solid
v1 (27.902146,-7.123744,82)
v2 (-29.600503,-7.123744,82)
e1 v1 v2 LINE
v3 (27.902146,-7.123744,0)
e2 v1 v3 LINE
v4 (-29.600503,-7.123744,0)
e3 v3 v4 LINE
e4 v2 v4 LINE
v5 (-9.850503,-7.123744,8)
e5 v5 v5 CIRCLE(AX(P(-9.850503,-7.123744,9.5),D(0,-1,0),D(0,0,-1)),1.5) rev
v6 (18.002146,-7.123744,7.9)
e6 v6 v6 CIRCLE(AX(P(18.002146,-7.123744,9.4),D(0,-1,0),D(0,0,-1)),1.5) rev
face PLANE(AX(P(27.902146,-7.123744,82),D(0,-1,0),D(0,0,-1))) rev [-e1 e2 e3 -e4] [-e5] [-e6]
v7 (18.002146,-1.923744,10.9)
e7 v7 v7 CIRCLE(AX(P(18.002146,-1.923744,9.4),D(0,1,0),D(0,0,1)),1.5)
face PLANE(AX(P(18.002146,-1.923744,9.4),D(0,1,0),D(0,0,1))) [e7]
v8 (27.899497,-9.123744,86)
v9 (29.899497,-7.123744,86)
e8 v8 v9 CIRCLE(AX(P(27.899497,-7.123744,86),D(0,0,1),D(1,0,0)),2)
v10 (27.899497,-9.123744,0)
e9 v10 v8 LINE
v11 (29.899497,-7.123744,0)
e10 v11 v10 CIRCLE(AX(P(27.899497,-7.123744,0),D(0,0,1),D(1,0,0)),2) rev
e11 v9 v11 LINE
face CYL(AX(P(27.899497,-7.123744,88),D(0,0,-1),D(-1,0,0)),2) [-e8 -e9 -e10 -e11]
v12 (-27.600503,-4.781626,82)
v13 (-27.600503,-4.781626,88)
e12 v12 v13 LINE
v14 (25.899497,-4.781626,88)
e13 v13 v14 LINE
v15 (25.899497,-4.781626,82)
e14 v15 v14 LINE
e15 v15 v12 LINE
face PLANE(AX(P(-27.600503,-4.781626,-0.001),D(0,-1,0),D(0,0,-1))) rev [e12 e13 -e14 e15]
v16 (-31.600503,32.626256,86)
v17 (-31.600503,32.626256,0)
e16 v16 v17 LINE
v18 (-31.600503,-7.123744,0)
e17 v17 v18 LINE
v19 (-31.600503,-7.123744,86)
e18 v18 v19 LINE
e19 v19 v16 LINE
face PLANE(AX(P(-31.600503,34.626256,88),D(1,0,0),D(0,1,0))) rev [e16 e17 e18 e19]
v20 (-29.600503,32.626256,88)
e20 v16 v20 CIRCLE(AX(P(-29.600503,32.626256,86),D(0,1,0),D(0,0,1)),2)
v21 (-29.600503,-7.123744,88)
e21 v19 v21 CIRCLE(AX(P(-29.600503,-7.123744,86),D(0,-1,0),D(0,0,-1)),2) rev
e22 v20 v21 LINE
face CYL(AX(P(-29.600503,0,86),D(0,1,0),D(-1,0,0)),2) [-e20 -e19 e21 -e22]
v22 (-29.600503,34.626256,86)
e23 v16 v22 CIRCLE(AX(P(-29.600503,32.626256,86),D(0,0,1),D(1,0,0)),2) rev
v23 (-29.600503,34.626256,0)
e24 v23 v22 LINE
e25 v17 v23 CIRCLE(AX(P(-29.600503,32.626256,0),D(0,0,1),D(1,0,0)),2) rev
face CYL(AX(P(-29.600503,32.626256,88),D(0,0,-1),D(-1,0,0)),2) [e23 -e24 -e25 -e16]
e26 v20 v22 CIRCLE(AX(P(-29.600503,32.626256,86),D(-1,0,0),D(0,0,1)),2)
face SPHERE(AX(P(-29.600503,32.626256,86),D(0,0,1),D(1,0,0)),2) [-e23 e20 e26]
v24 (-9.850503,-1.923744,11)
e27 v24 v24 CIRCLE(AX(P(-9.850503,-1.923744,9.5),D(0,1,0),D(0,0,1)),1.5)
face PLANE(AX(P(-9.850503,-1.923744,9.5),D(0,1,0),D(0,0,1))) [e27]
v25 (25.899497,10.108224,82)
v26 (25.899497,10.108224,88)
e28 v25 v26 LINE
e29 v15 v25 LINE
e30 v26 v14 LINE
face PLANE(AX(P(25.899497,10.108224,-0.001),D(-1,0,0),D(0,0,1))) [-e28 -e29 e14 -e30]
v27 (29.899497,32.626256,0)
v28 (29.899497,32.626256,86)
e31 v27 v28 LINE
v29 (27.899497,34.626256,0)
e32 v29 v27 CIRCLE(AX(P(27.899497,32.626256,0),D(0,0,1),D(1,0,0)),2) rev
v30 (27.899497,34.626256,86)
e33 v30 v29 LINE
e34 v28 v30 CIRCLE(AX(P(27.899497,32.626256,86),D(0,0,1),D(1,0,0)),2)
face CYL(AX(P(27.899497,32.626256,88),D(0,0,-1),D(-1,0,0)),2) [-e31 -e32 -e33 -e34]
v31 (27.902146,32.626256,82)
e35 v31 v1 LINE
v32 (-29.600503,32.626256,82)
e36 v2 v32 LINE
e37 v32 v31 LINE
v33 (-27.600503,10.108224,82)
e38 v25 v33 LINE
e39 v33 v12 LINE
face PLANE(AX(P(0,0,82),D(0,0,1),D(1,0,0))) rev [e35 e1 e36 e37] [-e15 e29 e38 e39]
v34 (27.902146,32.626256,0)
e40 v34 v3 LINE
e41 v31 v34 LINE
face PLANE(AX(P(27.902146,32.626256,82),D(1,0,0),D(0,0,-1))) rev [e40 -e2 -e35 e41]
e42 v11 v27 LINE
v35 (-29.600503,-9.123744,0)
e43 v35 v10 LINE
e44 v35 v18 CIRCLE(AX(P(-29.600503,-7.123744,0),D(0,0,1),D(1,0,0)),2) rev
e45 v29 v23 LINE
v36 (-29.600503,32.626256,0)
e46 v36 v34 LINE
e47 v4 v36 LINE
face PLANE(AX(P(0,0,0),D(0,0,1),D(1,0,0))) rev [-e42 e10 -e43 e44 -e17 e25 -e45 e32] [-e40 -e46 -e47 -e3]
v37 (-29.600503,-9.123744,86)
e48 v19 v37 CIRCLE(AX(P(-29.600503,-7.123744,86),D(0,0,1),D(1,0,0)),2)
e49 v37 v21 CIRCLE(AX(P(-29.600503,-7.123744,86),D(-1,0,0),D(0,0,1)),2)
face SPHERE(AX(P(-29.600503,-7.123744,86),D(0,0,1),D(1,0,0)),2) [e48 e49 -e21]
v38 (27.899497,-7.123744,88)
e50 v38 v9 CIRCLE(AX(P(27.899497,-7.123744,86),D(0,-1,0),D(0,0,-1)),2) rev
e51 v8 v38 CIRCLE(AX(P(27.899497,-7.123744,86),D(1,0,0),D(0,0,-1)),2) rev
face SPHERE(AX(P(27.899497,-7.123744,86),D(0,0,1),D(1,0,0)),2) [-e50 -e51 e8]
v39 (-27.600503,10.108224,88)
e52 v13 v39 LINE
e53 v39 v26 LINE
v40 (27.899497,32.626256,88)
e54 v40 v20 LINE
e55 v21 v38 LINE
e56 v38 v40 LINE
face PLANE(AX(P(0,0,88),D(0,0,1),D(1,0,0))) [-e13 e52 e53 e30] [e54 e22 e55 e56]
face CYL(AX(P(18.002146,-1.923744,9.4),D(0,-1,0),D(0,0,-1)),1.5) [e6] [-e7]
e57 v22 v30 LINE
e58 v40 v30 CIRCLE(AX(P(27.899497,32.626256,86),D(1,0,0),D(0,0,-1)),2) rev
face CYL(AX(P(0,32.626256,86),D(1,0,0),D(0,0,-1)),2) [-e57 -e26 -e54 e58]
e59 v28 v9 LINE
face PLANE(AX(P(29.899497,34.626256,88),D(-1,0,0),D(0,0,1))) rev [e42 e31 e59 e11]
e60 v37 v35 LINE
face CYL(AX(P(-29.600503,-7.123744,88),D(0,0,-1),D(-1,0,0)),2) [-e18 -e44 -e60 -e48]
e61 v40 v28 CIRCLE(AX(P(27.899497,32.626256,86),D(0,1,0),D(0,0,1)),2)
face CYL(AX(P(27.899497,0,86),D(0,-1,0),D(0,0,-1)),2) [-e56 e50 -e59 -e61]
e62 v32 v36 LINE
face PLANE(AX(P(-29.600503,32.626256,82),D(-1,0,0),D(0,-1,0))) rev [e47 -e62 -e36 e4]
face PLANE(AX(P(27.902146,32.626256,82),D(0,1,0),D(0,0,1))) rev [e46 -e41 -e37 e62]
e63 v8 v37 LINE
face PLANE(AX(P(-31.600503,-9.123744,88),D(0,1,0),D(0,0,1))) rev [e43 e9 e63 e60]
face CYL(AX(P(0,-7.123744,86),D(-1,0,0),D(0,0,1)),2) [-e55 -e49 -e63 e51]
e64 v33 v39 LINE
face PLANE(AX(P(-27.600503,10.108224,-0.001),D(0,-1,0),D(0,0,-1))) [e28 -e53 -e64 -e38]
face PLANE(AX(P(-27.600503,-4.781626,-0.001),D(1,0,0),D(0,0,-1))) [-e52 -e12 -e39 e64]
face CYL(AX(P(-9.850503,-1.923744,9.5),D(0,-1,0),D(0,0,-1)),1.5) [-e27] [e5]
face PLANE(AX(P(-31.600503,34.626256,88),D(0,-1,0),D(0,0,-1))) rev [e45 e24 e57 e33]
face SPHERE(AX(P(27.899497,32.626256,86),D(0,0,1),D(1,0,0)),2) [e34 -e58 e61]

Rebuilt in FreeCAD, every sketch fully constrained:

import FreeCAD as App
import Part
import Sketcher
from FreeCAD import Vector


def edges_at(feature, points):
    """Names of the edges that pass closest to the given points."""
    edges = feature.Shape.Edges
    near = lambda p: min(range(len(edges)), key=lambda i: edges[i].distToShape(Part.Vertex(*p))[0])
    return sorted({f"Edge{near(p) + 1}" for p in points})


def add_polygon(sketch, points):
    """Adds a closed chain of lines whose ends are joined by coincident constraints."""
    first, n = sketch.GeometryCount, len(points)
    for a, b in zip(points, points[1:] + points[:1]):
        sketch.addGeometry(Part.LineSegment(App.Vector(*a, 0), App.Vector(*b, 0)), False)
    for i in range(n):
        sketch.addConstraint(Sketcher.Constraint("Coincident", first + i, 2, first + (i + 1) % n, 1))

doc = App.newDocument("Part")
body = doc.addObject("PartDesign::Body", "Body")

# Sketch on XY plane
sketch1 = body.newObject("Sketcher::SketchObject", "Sketch")
sketch1.AttachmentSupport = (doc.getObject("XY_Plane"), [""])
sketch1.MapMode = "FlatFace"
add_polygon(sketch1, [(-31.600503, 34.626256), (-31.600503, -9.123744), (29.899497, -9.123744), (29.899497, 34.626256)])  # lines 0-3
sketch1.addConstraint([
    Sketcher.Constraint("Vertical", 0),
    Sketcher.Constraint("Horizontal", 1),
    Sketcher.Constraint("Vertical", 2),
    Sketcher.Constraint("Horizontal", 3),
    Sketcher.Constraint("DistanceX", 1, 1, 1, 2, 61.5),
    Sketcher.Constraint("DistanceY", 0, 2, 0, 1, 43.75),
    Sketcher.Constraint("DistanceX", 0, 2, -1, 1, 31.600503),
    Sketcher.Constraint("DistanceY", 0, 2, -1, 1, 9.123744),
])
pad1 = body.newObject("PartDesign::Pad", "Pad")
pad1.Profile = sketch1
pad1.Length = 88

# Sketch on XY plane
sketch2 = body.newObject("Sketcher::SketchObject", "Sketch001")
sketch2.AttachmentSupport = (doc.getObject("XY_Plane"), [""])
sketch2.MapMode = "FlatFace"
sketch2.AttachmentOffset = App.Placement(Vector(0, 0, 88), App.Rotation())
add_polygon(sketch2, [(-27.600503, 10.108224), (-27.600503, -4.781626), (25.899497, -4.781626), (25.899497, 10.108224)])  # lines 0-3
sketch2.addConstraint([
    Sketcher.Constraint("Vertical", 0),
    Sketcher.Constraint("Horizontal", 1),
    Sketcher.Constraint("Vertical", 2),
    Sketcher.Constraint("Horizontal", 3),
    Sketcher.Constraint("DistanceX", 1, 1, 1, 2, 53.5),
    Sketcher.Constraint("DistanceY", 0, 2, 0, 1, 14.889849),
    Sketcher.Constraint("DistanceX", 0, 2, -1, 1, 27.600503),
    Sketcher.Constraint("DistanceY", 0, 2, -1, 1, 4.781626),
])
pocket1 = body.newObject("PartDesign::Pocket", "Pocket")
pocket1.Profile = sketch2
pocket1.Type = "UpToFirst"

# Sketch on XY plane
sketch3 = body.newObject("Sketcher::SketchObject", "Sketch002")
sketch3.AttachmentSupport = (doc.getObject("XY_Plane"), [""])
sketch3.MapMode = "FlatFace"
add_polygon(sketch3, [(27.902146, 32.626256), (27.902146, -7.123744), (-29.600503, -7.123744), (-29.600503, 32.626256)])  # lines 0-3
sketch3.addConstraint([
    Sketcher.Constraint("Vertical", 0),
    Sketcher.Constraint("Horizontal", 1),
    Sketcher.Constraint("Vertical", 2),
    Sketcher.Constraint("Horizontal", 3),
    Sketcher.Constraint("DistanceY", 0, 2, 0, 1, 39.75),
    Sketcher.Constraint("DistanceX", 1, 2, 1, 1, 57.502648),
    Sketcher.Constraint("DistanceX", -1, 1, 0, 2, 27.902146),
    Sketcher.Constraint("DistanceY", 0, 2, -1, 1, 7.123744),
])
pocket2 = body.newObject("PartDesign::Pocket", "Pocket001")
pocket2.Profile = sketch3
pocket2.Length = 82
pocket2.Reversed = True
doc.recompute()

fillet = body.newObject("PartDesign::Fillet", "Fillet")
fillet.Base = (pocket2, edges_at(pocket2, [
    (29.899, 12.751, 88),
    (-0.851, 34.626, 88),
    (-31.601, 12.751, 88),
    (-31.601, 34.626, 44),
    (29.899, 34.626, 44),
    (29.899, -9.124, 44),
    (-31.601, -9.124, 44),
    (-0.851, -9.124, 88),
]))
fillet.Radius = 2

# Sketch on XZ plane
sketch4 = body.newObject("Sketcher::SketchObject", "Sketch003")
sketch4.AttachmentSupport = (doc.getObject("XZ_Plane"), [""])
sketch4.MapMode = "FlatFace"
sketch4.AttachmentOffset = App.Placement(Vector(0, 0, 7.123744), App.Rotation())
sketch4.addGeometry(Part.Circle(Vector(18.002146, 9.4, 0), Vector(0, 0, 1), 1.5), False)
sketch4.addConstraint([
    Sketcher.Constraint("Diameter", 0, 3.0),
    Sketcher.Constraint("DistanceY", -1, 1, 0, 3, 9.4),
    Sketcher.Constraint("DistanceX", -1, 1, 0, 3, 18.002146),
])
pad2 = body.newObject("PartDesign::Pad", "Pad001")
pad2.Profile = sketch4
pad2.Length = 5.2
pad2.Reversed = True

# Sketch on XZ plane
sketch5 = body.newObject("Sketcher::SketchObject", "Sketch004")
sketch5.AttachmentSupport = (doc.getObject("XZ_Plane"), [""])
sketch5.MapMode = "FlatFace"
sketch5.AttachmentOffset = App.Placement(Vector(0, 0, 7.123744), App.Rotation())
sketch5.addGeometry(Part.Circle(Vector(-9.850503, 9.5, 0), Vector(0, 0, 1), 1.5), False)
sketch5.addConstraint([
    Sketcher.Constraint("Diameter", 0, 3.0),
    Sketcher.Constraint("DistanceY", -1, 1, 0, 3, 9.5),
    Sketcher.Constraint("DistanceX", 0, 3, -1, 1, 9.850503),
])
pad3 = body.newObject("PartDesign::Pad", "Pad002")
pad3.Profile = sketch5
pad3.Length = 5.2
pad3.Reversed = True

doc.recompute()
